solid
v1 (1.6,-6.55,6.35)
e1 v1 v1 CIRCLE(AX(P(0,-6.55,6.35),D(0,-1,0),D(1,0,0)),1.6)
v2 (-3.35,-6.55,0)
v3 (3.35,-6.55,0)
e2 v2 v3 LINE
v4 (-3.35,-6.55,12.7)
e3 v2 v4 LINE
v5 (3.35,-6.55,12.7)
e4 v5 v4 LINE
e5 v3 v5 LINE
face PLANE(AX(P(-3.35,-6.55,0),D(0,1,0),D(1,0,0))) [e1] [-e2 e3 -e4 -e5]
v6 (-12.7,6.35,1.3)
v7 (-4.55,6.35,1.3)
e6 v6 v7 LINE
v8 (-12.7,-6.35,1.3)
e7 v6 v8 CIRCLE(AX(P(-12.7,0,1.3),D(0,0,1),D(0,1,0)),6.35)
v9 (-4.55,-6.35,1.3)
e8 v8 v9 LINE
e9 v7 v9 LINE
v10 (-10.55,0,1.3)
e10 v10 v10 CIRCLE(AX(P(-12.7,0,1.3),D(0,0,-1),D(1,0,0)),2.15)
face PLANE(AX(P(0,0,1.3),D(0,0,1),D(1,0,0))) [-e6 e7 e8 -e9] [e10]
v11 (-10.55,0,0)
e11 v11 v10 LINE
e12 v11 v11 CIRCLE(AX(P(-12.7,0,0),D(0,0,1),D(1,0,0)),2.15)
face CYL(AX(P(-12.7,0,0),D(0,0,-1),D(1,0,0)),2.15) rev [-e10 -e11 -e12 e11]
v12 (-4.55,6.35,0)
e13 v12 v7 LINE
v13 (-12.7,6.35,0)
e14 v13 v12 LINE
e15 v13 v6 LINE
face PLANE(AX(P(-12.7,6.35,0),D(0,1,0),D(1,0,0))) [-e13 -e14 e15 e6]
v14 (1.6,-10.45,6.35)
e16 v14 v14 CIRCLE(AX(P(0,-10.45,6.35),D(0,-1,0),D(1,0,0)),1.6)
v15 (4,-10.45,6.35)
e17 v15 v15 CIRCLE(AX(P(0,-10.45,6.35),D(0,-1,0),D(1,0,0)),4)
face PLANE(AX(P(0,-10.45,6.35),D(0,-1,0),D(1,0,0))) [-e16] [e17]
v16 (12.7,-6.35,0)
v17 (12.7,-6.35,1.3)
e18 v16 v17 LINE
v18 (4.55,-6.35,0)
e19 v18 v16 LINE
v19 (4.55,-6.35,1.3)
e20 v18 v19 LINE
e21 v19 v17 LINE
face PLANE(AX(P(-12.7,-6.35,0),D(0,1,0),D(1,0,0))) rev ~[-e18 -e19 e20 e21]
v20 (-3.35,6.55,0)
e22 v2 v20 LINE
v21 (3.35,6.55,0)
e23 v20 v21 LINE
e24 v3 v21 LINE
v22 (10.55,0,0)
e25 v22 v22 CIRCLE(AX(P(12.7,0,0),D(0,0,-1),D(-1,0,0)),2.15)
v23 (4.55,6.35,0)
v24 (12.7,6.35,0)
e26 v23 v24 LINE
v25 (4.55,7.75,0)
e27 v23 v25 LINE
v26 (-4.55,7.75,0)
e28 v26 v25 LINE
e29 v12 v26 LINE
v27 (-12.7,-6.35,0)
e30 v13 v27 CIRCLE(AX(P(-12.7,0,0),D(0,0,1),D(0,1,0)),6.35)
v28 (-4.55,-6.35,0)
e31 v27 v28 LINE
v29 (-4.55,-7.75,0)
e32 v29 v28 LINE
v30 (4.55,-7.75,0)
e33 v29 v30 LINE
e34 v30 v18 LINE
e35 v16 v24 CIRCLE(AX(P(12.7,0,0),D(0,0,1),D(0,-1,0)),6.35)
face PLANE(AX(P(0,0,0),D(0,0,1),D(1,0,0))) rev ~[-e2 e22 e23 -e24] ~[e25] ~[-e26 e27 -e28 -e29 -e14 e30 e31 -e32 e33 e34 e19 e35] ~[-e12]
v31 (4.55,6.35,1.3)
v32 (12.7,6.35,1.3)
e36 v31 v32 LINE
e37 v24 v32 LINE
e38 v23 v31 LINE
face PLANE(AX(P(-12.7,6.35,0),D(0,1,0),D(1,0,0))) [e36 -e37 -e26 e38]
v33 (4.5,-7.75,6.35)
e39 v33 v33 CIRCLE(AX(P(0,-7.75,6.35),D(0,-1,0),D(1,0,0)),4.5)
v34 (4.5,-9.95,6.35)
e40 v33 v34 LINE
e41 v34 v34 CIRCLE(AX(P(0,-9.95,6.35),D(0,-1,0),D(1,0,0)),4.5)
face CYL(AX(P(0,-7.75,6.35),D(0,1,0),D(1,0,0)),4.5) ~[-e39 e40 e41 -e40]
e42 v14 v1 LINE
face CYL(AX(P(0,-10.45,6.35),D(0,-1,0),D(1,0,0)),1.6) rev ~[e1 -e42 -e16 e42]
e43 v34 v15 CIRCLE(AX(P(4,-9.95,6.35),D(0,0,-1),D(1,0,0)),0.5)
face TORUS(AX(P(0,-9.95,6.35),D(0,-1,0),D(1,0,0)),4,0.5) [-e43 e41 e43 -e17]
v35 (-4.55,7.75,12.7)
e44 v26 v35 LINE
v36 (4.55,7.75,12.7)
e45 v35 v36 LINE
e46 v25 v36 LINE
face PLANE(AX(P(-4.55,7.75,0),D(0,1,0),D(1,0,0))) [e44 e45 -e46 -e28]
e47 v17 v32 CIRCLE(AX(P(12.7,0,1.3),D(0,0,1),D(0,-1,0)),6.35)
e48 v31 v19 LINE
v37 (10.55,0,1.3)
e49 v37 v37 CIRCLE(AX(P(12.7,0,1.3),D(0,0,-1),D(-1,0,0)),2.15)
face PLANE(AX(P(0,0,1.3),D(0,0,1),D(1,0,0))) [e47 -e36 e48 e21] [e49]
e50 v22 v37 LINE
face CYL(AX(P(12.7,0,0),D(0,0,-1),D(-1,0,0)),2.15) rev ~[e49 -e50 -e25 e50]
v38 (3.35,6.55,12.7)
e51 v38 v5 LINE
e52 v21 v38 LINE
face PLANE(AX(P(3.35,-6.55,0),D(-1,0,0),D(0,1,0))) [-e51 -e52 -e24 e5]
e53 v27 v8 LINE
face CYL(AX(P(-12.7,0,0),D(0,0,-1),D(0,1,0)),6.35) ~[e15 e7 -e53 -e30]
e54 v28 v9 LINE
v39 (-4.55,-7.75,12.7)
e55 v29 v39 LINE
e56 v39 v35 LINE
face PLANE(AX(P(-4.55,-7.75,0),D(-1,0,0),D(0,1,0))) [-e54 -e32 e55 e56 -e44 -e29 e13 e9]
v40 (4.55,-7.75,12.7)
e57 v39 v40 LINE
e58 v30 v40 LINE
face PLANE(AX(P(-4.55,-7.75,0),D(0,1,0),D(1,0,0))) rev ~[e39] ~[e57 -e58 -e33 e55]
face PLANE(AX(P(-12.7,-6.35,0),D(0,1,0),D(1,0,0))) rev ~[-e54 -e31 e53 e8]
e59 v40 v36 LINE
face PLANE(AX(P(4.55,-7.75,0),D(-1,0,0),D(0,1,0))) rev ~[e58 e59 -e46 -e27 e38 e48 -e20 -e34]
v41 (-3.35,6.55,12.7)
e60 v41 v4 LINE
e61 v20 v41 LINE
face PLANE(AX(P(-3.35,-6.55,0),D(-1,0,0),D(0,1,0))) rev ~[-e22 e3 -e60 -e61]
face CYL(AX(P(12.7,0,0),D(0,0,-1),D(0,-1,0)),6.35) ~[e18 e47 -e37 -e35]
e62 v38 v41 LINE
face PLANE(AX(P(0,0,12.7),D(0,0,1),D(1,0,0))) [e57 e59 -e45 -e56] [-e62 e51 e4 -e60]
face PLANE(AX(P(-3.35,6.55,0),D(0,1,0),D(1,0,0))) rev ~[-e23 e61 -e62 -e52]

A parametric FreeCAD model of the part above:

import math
import FreeCAD as App
import Part
import Sketcher
from FreeCAD import Vector


def edges_at(feature, points):
    """Names of the edges that pass closest to the given points."""
    edges = feature.Shape.Edges
    near = lambda p: min(range(len(edges)), key=lambda i: edges[i].distToShape(Part.Vertex(*p))[0])
    return sorted({f"Edge{near(p) + 1}" for p in points})

doc = App.newDocument("Part")
body = doc.addObject("PartDesign::Body", "Body")

sketch1 = body.newObject("Sketcher::SketchObject", "Sketch")
sketch1.AttachmentSupport = (doc.getObject("XY_Plane"), [""])
sketch1.MapMode = "FlatFace"
sketch1.addGeometry(Part.ArcOfCircle(Part.Circle(Vector(-13, 0, 0), Vector(0, 0, 1), 6), math.radians(90), math.radians(270)), False)
sketch1.addGeometry(Part.LineSegment(Vector(-13, -6, 0), Vector(13, -6, 0)), False)
sketch1.addGeometry(Part.ArcOfCircle(Part.Circle(Vector(13, 0, 0), Vector(0, 0, 1), 6), math.radians(-90), math.radians(90)), False)
sketch1.addGeometry(Part.LineSegment(Vector(13, 6, 0), Vector(-13, 6, 0)), False)
sketch1.addConstraint(Sketcher.Constraint("Tangent", 0, 2, 1, 1))
sketch1.addConstraint(Sketcher.Constraint("Tangent", 1, 2, 2, 1))
sketch1.addConstraint(Sketcher.Constraint("Tangent", 2, 2, 3, 1))
sketch1.addConstraint(Sketcher.Constraint("Tangent", 3, 2, 0, 1))
sketch1.addConstraint(Sketcher.Constraint("Horizontal", 1))
sketch1.addConstraint(Sketcher.Constraint("Horizontal", 3))
sketch1.addConstraint(Sketcher.Constraint("Symmetric", 0, 3, 2, 3, -1, 1))
sketch1.addConstraint(Sketcher.Constraint("Radius", 0, 6.35))
sketch1.addConstraint(Sketcher.Constraint("DistanceX", 1, 1, 1, 2, 25.4))
pad1 = body.newObject("PartDesign::Pad", "Pad")
pad1.Profile = sketch1
pad1.Length = 1.3

sketch2 = body.newObject("Sketcher::SketchObject", "Sketch001")
sketch2.AttachmentSupport = (doc.getObject("XY_Plane"), [""])
sketch2.MapMode = "FlatFace"
sketch2.addGeometry(Part.LineSegment(Vector(-5, 8, 0), Vector(-5, -8, 0)), False)
sketch2.addGeometry(Part.LineSegment(Vector(-5, -8, 0), Vector(5, -8, 0)), False)
sketch2.addGeometry(Part.LineSegment(Vector(5, -8, 0), Vector(5, 8, 0)), False)
sketch2.addGeometry(Part.LineSegment(Vector(5, 8, 0), Vector(-5, 8, 0)), False)
sketch2.addConstraint(Sketcher.Constraint("Coincident", 0, 2, 1, 1))
sketch2.addConstraint(Sketcher.Constraint("Coincident", 1, 2, 2, 1))
sketch2.addConstraint(Sketcher.Constraint("Coincident", 2, 2, 3, 1))
sketch2.addConstraint(Sketcher.Constraint("Coincident", 3, 2, 0, 1))
sketch2.addConstraint(Sketcher.Constraint("Vertical", 0))
sketch2.addConstraint(Sketcher.Constraint("Horizontal", 1))
sketch2.addConstraint(Sketcher.Constraint("Vertical", 2))
sketch2.addConstraint(Sketcher.Constraint("Horizontal", 3))
sketch2.addConstraint(Sketcher.Constraint("Symmetric", 0, 2, 2, 2, -1, 1))
sketch2.addConstraint(Sketcher.Constraint("DistanceX", 1, 1, 1, 2, 9.1))
sketch2.addConstraint(Sketcher.Constraint("DistanceY", 0, 2, 0, 1, 15.5))
pad2 = body.newObject("PartDesign::Pad", "Pad001")
pad2.Profile = sketch2
pad2.Length = 12.7

sketch3 = body.newObject("Sketcher::SketchObject", "Sketch002")
sketch3.AttachmentSupport = (doc.getObject("XY_Plane"), [""])
sketch3.MapMode = "FlatFace"
sketch3.addGeometry(Part.LineSegment(Vector(-3, 7, 0), Vector(-3, -7, 0)), False)
sketch3.addGeometry(Part.LineSegment(Vector(-3, -7, 0), Vector(3, -7, 0)), False)
sketch3.addGeometry(Part.LineSegment(Vector(3, -7, 0), Vector(3, 7, 0)), False)
sketch3.addGeometry(Part.LineSegment(Vector(3, 7, 0), Vector(-3, 7, 0)), False)
sketch3.addConstraint(Sketcher.Constraint("Coincident", 0, 2, 1, 1))
sketch3.addConstraint(Sketcher.Constraint("Coincident", 1, 2, 2, 1))
sketch3.addConstraint(Sketcher.Constraint("Coincident", 2, 2, 3, 1))
sketch3.addConstraint(Sketcher.Constraint("Coincident", 3, 2, 0, 1))
sketch3.addConstraint(Sketcher.Constraint("Vertical", 0))
sketch3.addConstraint(Sketcher.Constraint("Horizontal", 1))
sketch3.addConstraint(Sketcher.Constraint("Vertical", 2))
sketch3.addConstraint(Sketcher.Constraint("Horizontal", 3))
sketch3.addConstraint(Sketcher.Constraint("Symmetric", 0, 2, 2, 2, -1, 1))
sketch3.addConstraint(Sketcher.Constraint("DistanceX", 1, 1, 1, 2, 6.7))
sketch3.addConstraint(Sketcher.Constraint("DistanceY", 0, 2, 0, 1, 13.1))
pocket1 = body.newObject("PartDesign::Pocket", "Pocket")
pocket1.Profile = sketch3
pocket1.Type = "ThroughAll"
pocket1.Reversed = True

sketch4 = body.newObject("Sketcher::SketchObject", "Sketch003")
sketch4.AttachmentSupport = (doc.getObject("XY_Plane"), [""])
sketch4.MapMode = "FlatFace"
sketch4.addGeometry(Part.Circle(Vector(-12.7, 0, 0), Vector(0, 0, 1), 2.1), False)
sketch4.addConstraint(Sketcher.Constraint("PointOnObject", 0, 3, -1))
sketch4.addConstraint(Sketcher.Constraint("Diameter", 0, 4.3))
sketch4.addConstraint(Sketcher.Constraint("DistanceX", 0, 3, -1, 1, 12.7))
pocket2 = body.newObject("PartDesign::Pocket", "Pocket001")
pocket2.Profile = sketch4
pocket2.Type = "ThroughAll"
pocket2.Reversed = True
doc.recompute()

mirrored = body.newObject("PartDesign::Mirrored", "Mirrored")
mirrored.Originals = [pocket2]
mirrored.MirrorPlane = (doc.getObject("YZ_Plane"), [""])
body.Tip = mirrored

sketch5 = body.newObject("Sketcher::SketchObject", "Sketch004")
sketch5.AttachmentSupport = (doc.getObject("XZ_Plane"), [""])
sketch5.MapMode = "FlatFace"
sketch5.AttachmentOffset = App.Placement(Vector(0, 0, 7.75), App.Rotation())
sketch5.addGeometry(Part.Circle(Vector(0, 6.3, 0), Vector(0, 0, 1), 4.5), False)
sketch5.addConstraint(Sketcher.Constraint("PointOnObject", 0, 3, -2))
sketch5.addConstraint(Sketcher.Constraint("Diameter", 0, 9.0))
sketch5.addConstraint(Sketcher.Constraint("DistanceY", -1, 1, 0, 3, 6.35))
pad3 = body.newObject("PartDesign::Pad", "Pad002")
pad3.Profile = sketch5
pad3.Length = 2.7

sketch6 = body.newObject("Sketcher::SketchObject", "Sketch005")
sketch6.AttachmentSupport = (doc.getObject("XZ_Plane"), [""])
sketch6.MapMode = "FlatFace"
sketch6.AttachmentOffset = App.Placement(Vector(0, 0, 10.45), App.Rotation())
sketch6.addGeometry(Part.Circle(Vector(0, 6.3, 0), Vector(0, 0, 1), 1.6), False)
sketch6.addConstraint(Sketcher.Constraint("PointOnObject", 0, 3, -2))
sketch6.addConstraint(Sketcher.Constraint("Diameter", 0, 3.2))
sketch6.addConstraint(Sketcher.Constraint("DistanceY", -1, 1, 0, 3, 6.35))
pocket3 = body.newObject("PartDesign::Pocket", "Pocket002")
pocket3.Profile = sketch6
pocket3.Length = 3.9
doc.recompute()

fillet = body.newObject("PartDesign::Fillet", "Fillet")
fillet.Base = (pocket3, edges_at(pocket3, [(-4.5, -10.45, 6.35)]))
fillet.Radius = 0.5

doc.recompute()
